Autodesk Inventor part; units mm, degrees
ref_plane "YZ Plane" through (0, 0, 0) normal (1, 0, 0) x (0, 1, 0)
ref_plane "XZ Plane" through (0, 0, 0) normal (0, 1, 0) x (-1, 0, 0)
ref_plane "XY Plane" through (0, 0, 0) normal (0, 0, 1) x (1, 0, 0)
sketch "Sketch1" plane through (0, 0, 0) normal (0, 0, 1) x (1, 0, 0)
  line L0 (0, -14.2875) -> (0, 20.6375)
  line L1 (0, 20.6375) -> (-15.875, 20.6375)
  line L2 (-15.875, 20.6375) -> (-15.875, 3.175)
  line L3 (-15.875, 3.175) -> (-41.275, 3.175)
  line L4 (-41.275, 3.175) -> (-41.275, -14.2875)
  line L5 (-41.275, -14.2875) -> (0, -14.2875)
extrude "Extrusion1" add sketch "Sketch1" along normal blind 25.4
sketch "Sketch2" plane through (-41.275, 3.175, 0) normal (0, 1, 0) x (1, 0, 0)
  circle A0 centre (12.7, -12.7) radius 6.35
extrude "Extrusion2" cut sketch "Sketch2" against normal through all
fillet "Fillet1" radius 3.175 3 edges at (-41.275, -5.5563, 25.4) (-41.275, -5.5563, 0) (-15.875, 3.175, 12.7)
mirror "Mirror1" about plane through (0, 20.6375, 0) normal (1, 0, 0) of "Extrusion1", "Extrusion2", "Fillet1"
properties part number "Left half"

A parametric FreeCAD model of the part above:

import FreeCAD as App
import Part
import Sketcher

V = App.Vector
Q = App.Units.Quantity


def edges_at(feature, points):
    """Names of the edges that pass closest to the given points."""
    edges = feature.Shape.Edges
    near = lambda p: min(range(len(edges)), key=lambda i: edges[i].distToShape(Part.Vertex(*p))[0])
    return sorted({f"Edge{near(p) + 1}" for p in points})

doc = App.newDocument("Part")
body = doc.addObject("PartDesign::Body", "Body")

# Sketch on XY plane
sketch1 = doc.addObject("Sketcher::SketchObject", "Sketch")
body.addObject(sketch1)
sketch1.AttachmentSupport = (doc.XY_Plane, [""])
sketch1.MapMode = "FlatFace"
sketch1.addGeometry(Part.LineSegment(V(-41, -14, 0), V(0, -14, 0)), False)
sketch1.addGeometry(Part.LineSegment(V(0, -14, 0), V(0, 21, 0)), False)
sketch1.addGeometry(Part.LineSegment(V(0, 21, 0), V(-16, 21, 0)), False)
sketch1.addGeometry(Part.LineSegment(V(-16, 21, 0), V(-16, 3, 0)), False)
sketch1.addGeometry(Part.LineSegment(V(-16, 3, 0), V(-41, 3, 0)), False)
sketch1.addGeometry(Part.LineSegment(V(-41, 3, 0), V(-41, -14, 0)), False)
sketch1.addConstraint(Sketcher.Constraint("Coincident", 0, 2, 1, 1))
sketch1.addConstraint(Sketcher.Constraint("Coincident", 1, 2, 2, 1))
sketch1.addConstraint(Sketcher.Constraint("Coincident", 2, 2, 3, 1))
sketch1.addConstraint(Sketcher.Constraint("Coincident", 3, 2, 4, 1))
sketch1.addConstraint(Sketcher.Constraint("Coincident", 4, 2, 5, 1))
sketch1.addConstraint(Sketcher.Constraint("Coincident", 5, 2, 0, 1))
sketch1.addConstraint(Sketcher.Constraint("Horizontal", 0))
sketch1.addConstraint(Sketcher.Constraint("Vertical", 1))
sketch1.addConstraint(Sketcher.Constraint("Horizontal", 2))
sketch1.addConstraint(Sketcher.Constraint("Vertical", 3))
sketch1.addConstraint(Sketcher.Constraint("Horizontal", 4))
sketch1.addConstraint(Sketcher.Constraint("Vertical", 5))
sketch1.addConstraint(Sketcher.Constraint("PointOnObject", 0, 2, -2))
sketch1.addConstraint(Sketcher.Constraint("Equal", 3, 5))
sketch1.addConstraint(Sketcher.Constraint("DistanceX", 4, 2, 4, 1, Q("1 in")))
sketch1.addConstraint(Sketcher.Constraint("DistanceX", 0, 1, 0, 2, Q("1.625 in")))
sketch1.addConstraint(Sketcher.Constraint("DistanceY", 1, 1, 1, 2, Q("1.375 in")))
sketch1.addConstraint(Sketcher.Constraint("DistanceY", 0, 2, -1, 1, Q("0.5625 in")))
pad1 = doc.addObject("PartDesign::Pad", "Pad")
body.addObject(pad1)
pad1.Profile = sketch1
pad1.Length = Q("1 in")

# Sketch on XZ plane
sketch2 = doc.addObject("Sketcher::SketchObject", "Sketch001")
body.addObject(sketch2)
sketch2.AttachmentSupport = (doc.XZ_Plane, [""])
sketch2.MapMode = "FlatFace"
sketch2.AttachmentOffset = App.Placement(V(0, 0, -0.125 * 25.4), App.Rotation())
sketch2.addGeometry(Part.Circle(V(-29, 13, 0), V(0, 0, 1), 6), False)
sketch2.addConstraint(Sketcher.Constraint("Diameter", 0, Q("0.5 in")))
sketch2.addConstraint(Sketcher.Constraint("DistanceY", -1, 1, 0, 3, Q("0.5 in")))
sketch2.addConstraint(Sketcher.Constraint("DistanceX", 0, 3, -1, 1, Q("1.125 in")))
pocket1 = doc.addObject("PartDesign::Pocket", "Pocket")
body.addObject(pocket1)
pocket1.Profile = sketch2
pocket1.Type = "ThroughAll"
pocket1.Reversed = True
doc.recompute()

fillet = doc.addObject("PartDesign::Fillet", "Fillet")
body.addObject(fillet)
fillet.Base = (pocket1, edges_at(pocket1, [(-41.275, -5.556, 25.4), (-41.275, -5.556, 0), (-15.875, 3.175, 12.7)]))
fillet.Radius = Q("0.125 in")
doc.recompute()

mirrored = doc.addObject("PartDesign::Mirrored", "Mirrored")
body.addObject(mirrored)
mirrored.Originals = [pad1, pocket1, fillet]
mirrored.MirrorPlane = (doc.YZ_Plane, [""])
body.Tip = mirrored

doc.recompute()
